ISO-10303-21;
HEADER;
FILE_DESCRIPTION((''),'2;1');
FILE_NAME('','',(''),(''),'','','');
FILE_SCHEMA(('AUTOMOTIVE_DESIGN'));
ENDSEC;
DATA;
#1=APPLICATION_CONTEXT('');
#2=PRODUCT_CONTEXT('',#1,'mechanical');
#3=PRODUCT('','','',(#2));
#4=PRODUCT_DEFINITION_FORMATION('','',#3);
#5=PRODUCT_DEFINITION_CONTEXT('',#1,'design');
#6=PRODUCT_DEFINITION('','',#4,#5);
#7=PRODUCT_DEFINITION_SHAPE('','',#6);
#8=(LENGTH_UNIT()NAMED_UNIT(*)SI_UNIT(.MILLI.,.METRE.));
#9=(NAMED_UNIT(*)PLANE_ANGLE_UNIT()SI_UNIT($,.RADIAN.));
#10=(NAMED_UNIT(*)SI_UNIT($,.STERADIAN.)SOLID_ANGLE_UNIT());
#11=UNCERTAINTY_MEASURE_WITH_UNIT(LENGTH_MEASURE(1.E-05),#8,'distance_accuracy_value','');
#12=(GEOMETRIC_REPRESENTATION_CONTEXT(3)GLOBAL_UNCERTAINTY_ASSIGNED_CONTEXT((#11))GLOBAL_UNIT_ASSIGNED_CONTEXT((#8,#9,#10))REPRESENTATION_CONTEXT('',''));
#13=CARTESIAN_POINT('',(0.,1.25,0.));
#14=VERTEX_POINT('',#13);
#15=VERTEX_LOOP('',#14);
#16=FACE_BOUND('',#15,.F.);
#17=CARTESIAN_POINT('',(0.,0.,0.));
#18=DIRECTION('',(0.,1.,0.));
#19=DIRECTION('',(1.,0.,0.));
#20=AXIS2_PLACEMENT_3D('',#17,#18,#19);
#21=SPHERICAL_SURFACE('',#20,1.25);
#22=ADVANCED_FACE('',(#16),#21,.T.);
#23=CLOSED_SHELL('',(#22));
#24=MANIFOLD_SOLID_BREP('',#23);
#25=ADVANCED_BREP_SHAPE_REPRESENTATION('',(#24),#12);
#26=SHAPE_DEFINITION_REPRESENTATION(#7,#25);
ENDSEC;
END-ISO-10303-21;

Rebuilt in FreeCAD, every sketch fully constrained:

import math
import FreeCAD as App
import Part
import Sketcher
from FreeCAD import Vector

doc = App.newDocument("Part")
body = doc.addObject("PartDesign::Body", "Body")

sketch1 = body.newObject("Sketcher::SketchObject", "Sketch")
sketch1.AttachmentSupport = (doc.getObject("XY_Plane"), [""])
sketch1.MapMode = "FlatFace"
sketch1.addGeometry(Part.LineSegment(Vector(0, 1.2, 0), Vector(0, -1.2, 0)), False)
sketch1.addGeometry(Part.ArcOfCircle(Part.Circle(Vector(0, 0, 0), Vector(0, 0, 1), 1.2), math.radians(-90), math.radians(90)), False)
sketch1.addConstraint(Sketcher.Constraint("Coincident", 0, 1, 1, 2))
sketch1.addConstraint(Sketcher.Constraint("Coincident", 1, 1, 0, 2))
sketch1.addConstraint(Sketcher.Constraint("Vertical", 0))
sketch1.addConstraint(Sketcher.Constraint("Coincident", 1, 3, -1, 1))
sketch1.addConstraint(Sketcher.Constraint("PointOnObject", 0, 1, -2))
sketch1.addConstraint(Sketcher.Constraint("Radius", 1, 1.25))
revolution = body.newObject("PartDesign::Revolution", "Revolution")
revolution.Profile = sketch1
revolution.ReferenceAxis = (sketch1, ["V_Axis"])
revolution.Angle = 360

doc.recompute()
